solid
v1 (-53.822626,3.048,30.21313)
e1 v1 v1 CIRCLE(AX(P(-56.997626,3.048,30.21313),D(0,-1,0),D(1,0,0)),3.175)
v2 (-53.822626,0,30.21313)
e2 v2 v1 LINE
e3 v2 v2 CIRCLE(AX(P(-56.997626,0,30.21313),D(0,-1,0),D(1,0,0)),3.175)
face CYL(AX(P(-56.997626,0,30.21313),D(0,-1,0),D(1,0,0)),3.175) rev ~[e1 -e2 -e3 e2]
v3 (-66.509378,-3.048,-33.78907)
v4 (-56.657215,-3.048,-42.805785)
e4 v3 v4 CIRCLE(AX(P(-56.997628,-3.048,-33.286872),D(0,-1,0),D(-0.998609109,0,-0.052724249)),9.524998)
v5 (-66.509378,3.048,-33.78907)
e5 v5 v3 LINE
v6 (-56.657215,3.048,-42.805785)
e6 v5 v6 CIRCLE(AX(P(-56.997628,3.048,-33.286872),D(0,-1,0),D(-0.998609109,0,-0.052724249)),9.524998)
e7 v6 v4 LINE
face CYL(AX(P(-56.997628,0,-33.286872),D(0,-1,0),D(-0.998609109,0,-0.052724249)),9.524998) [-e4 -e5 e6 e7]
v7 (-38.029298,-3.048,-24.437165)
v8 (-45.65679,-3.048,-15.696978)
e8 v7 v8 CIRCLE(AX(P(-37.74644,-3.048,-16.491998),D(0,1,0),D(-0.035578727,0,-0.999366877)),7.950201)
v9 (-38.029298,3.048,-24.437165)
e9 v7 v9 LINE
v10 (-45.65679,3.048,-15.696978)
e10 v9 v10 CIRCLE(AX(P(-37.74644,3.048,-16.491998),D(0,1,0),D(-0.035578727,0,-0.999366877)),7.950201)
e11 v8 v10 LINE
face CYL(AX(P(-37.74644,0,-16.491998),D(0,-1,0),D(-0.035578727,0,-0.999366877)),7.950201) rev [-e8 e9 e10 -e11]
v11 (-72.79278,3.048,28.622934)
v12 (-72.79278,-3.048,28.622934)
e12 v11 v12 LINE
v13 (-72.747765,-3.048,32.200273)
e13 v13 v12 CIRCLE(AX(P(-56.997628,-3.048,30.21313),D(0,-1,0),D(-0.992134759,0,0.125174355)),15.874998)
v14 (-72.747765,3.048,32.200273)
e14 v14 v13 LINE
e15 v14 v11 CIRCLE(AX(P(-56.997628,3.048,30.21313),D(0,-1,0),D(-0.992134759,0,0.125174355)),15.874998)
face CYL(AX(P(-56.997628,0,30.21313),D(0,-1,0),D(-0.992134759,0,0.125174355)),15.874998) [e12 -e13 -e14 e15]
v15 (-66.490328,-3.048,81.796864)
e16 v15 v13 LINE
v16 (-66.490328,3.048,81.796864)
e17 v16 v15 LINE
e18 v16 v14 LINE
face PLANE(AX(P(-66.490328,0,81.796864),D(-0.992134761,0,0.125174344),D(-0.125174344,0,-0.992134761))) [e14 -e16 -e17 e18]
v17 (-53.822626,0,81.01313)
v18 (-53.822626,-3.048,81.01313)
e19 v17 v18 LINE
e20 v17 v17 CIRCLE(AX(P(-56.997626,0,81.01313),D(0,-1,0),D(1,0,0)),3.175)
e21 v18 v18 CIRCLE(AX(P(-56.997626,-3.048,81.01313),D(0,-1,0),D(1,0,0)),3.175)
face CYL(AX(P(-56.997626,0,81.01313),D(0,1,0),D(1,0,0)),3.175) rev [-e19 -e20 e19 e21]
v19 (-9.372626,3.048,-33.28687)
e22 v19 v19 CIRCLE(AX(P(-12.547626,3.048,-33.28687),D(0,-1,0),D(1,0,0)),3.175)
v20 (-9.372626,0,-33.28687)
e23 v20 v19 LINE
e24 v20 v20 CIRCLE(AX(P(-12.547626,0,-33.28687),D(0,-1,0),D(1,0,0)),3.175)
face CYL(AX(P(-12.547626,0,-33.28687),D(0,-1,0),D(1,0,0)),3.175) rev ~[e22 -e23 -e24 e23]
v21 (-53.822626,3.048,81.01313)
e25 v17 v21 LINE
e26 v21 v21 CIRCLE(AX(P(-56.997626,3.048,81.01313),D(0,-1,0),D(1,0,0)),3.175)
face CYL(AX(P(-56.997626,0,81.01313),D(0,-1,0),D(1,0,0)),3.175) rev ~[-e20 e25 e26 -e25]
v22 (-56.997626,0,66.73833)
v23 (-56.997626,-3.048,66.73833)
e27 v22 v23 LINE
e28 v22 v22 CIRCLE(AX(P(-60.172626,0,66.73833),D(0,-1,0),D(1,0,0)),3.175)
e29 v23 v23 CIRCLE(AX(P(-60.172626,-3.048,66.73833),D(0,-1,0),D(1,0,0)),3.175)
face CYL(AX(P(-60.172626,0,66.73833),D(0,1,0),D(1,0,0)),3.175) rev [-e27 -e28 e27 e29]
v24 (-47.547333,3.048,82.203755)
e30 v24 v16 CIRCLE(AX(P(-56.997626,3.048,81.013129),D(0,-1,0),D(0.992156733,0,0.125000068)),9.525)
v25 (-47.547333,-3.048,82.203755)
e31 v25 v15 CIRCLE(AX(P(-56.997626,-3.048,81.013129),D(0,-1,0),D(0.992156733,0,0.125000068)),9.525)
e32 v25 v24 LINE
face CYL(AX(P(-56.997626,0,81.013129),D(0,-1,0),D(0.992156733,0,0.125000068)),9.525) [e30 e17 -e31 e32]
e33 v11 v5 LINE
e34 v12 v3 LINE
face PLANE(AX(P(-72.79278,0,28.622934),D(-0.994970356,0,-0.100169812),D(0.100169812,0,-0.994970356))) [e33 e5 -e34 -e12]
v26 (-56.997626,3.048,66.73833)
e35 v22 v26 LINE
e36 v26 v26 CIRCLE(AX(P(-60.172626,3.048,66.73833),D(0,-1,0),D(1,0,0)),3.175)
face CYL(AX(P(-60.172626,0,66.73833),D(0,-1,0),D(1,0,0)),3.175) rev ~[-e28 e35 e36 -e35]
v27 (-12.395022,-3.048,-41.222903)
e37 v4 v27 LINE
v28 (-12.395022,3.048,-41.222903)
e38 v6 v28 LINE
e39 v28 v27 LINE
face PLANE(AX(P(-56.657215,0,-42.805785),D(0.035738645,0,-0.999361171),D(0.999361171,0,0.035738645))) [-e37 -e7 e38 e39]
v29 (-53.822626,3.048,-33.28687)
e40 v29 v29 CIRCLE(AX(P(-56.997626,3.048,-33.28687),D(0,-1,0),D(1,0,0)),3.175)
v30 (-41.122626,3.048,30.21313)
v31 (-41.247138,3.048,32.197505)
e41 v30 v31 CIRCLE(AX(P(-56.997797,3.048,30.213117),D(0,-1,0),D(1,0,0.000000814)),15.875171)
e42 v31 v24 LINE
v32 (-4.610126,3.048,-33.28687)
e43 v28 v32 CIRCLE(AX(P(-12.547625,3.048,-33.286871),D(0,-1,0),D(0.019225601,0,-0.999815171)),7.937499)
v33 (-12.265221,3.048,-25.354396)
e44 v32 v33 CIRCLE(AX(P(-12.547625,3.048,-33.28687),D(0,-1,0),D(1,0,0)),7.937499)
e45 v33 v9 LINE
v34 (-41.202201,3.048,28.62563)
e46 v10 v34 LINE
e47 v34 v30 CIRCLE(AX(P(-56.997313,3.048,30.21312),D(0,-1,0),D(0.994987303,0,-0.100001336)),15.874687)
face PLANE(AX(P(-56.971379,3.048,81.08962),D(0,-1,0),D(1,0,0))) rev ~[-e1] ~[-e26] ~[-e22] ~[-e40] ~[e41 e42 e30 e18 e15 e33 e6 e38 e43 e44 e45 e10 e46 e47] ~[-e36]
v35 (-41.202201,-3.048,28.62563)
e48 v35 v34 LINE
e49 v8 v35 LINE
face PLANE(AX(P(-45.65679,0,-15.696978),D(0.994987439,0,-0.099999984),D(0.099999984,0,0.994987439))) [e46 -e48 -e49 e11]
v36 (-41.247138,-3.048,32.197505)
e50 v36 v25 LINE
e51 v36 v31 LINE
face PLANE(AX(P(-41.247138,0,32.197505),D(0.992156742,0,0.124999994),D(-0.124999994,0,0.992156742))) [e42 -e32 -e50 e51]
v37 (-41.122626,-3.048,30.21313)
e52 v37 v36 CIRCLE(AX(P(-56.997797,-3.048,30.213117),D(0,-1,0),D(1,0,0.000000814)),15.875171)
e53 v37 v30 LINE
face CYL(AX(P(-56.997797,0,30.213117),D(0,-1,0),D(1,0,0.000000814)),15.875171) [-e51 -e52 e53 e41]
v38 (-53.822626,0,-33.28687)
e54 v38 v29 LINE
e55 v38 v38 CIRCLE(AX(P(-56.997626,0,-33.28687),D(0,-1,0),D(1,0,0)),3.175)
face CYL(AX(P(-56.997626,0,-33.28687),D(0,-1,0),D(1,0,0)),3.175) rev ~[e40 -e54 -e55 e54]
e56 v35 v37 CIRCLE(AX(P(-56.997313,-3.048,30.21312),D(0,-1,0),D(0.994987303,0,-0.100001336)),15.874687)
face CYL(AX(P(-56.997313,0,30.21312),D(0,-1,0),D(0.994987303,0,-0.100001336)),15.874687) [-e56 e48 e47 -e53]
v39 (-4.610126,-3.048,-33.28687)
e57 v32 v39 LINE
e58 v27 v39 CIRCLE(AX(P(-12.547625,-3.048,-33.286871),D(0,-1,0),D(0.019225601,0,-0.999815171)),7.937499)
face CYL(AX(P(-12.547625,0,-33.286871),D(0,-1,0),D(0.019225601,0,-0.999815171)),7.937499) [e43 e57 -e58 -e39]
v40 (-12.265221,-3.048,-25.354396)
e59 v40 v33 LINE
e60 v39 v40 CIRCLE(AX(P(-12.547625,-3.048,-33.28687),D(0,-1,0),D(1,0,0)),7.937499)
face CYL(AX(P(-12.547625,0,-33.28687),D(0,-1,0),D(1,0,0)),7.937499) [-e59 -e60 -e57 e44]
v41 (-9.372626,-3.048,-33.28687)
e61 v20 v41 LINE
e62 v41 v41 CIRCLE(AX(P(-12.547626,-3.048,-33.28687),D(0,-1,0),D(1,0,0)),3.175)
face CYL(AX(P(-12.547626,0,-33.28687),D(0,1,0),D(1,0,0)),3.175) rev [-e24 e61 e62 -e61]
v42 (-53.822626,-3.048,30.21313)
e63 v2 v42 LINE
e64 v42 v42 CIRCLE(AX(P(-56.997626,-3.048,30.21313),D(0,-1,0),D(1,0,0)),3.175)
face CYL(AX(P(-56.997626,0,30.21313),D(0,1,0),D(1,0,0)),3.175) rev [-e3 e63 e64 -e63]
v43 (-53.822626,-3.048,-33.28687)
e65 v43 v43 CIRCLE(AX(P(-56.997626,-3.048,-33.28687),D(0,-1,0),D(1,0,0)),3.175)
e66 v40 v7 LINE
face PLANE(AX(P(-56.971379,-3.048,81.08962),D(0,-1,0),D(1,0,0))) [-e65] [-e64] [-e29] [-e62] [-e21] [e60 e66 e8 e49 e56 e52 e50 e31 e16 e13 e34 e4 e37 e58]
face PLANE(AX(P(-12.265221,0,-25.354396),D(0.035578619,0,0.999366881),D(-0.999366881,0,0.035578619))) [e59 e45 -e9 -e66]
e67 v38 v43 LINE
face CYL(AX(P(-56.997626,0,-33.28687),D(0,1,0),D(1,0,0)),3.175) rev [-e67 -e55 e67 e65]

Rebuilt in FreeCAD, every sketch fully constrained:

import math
import FreeCAD as App
import Part
import Sketcher
Q = App.Units.Quantity

doc = App.newDocument("Part")
body = doc.addObject("PartDesign::Body", "Body")

# Sketch on XZ plane
sketch1 = body.newObject("Sketcher::SketchObject", "Sketch")
sketch1.AttachmentSupport = (doc.getObject("XZ_Plane"), [""])
sketch1.MapMode = "FlatFace"
sketch1.addGeometry(Part.ArcOfCircle(Part.Circle(App.Vector(-56.997626, 81.013129, 0), App.Vector(0, 0, 1), 9.525), math.radians(7.18076), math.radians(175.280261)), False)
sketch1.addGeometry(Part.LineSegment(App.Vector(-66.490328, 81.796864, 0), App.Vector(-72.747765, 32.200273, 0)), False)
sketch1.addGeometry(Part.ArcOfCircle(Part.Circle(App.Vector(-56.997628, 30.21313, 0), App.Vector(0, 0, 1), 15.874998), math.radians(172.809175), math.radians(185.748952)), False)
sketch1.addGeometry(Part.LineSegment(App.Vector(-72.79278, 28.622934, 0), App.Vector(-66.509378, -33.78907, 0)), False)
sketch1.addGeometry(Part.ArcOfCircle(Part.Circle(App.Vector(-56.997628, -33.286872, 0), App.Vector(0, 0, 1), 9.524998), math.radians(-176.977722), math.radians(-87.951876)), False)
sketch1.addGeometry(Part.LineSegment(App.Vector(-56.657215, -42.805785, 0), App.Vector(-12.395022, -41.222903, 0)), False)
sketch1.addGeometry(Part.ArcOfCircle(Part.Circle(App.Vector(-12.547625, -33.286871, 0), App.Vector(0, 0, 1), 7.937499), math.radians(-88.898386), math.radians(0.000006)), False)
sketch1.addGeometry(Part.ArcOfCircle(Part.Circle(App.Vector(-12.547625, -33.28687, 0), App.Vector(0, 0, 1), 7.937499), math.radians(0), math.radians(87.961072)), False)
sketch1.addGeometry(Part.LineSegment(App.Vector(-12.265221, -25.354396, 0), App.Vector(-38.029298, -24.437165, 0)), False)
sketch1.addGeometry(Part.ArcOfCircle(Part.Circle(App.Vector(-37.74644, -16.491998, 0), App.Vector(0, 0, 1), 7.950201), math.radians(174.260833), math.radians(267.961059)), False)
sketch1.addGeometry(Part.LineSegment(App.Vector(-45.65679, -15.696978, 0), App.Vector(-41.202201, 28.62563, 0)), False)
sketch1.addGeometry(Part.ArcOfCircle(Part.Circle(App.Vector(-56.997313, 30.21312, 0), App.Vector(0, 0, 1), 15.874687), math.radians(-5.739247), math.radians(0.000036)), False)
sketch1.addGeometry(Part.ArcOfCircle(Part.Circle(App.Vector(-56.997797, 30.213117, 0), App.Vector(0, 0, 1), 15.875171), math.radians(0.000047), math.radians(7.180725)), False)
sketch1.addGeometry(Part.LineSegment(App.Vector(-41.247138, 32.197505, 0), App.Vector(-47.547333, 82.203755, 0)), False)
sketch1.addGeometry(Part.Circle(App.Vector(-56.997626, -33.28687, 0), App.Vector(0, 0, 1), 3.175), False)
sketch1.addGeometry(Part.Circle(App.Vector(-12.547626, -33.28687, 0), App.Vector(0, 0, 1), 3.175), False)
sketch1.addGeometry(Part.Circle(App.Vector(-56.997626, 30.21313, 0), App.Vector(0, 0, 1), 3.175), False)
sketch1.addGeometry(Part.Circle(App.Vector(-60.172626, 66.73833, 0), App.Vector(0, 0, 1), 3.175), False)
sketch1.addGeometry(Part.Circle(App.Vector(-56.997626, 81.01313, 0), App.Vector(0, 0, 1), 3.175), False)
sketch1.addConstraint(Sketcher.Constraint("Coincident", 0, 2, 1, 1))
sketch1.addConstraint(Sketcher.Constraint("Coincident", 1, 2, 2, 1))
sketch1.addConstraint(Sketcher.Constraint("Coincident", 2, 2, 3, 1))
sketch1.addConstraint(Sketcher.Constraint("Coincident", 3, 2, 4, 1))
sketch1.addConstraint(Sketcher.Constraint("Coincident", 4, 2, 5, 1))
sketch1.addConstraint(Sketcher.Constraint("Coincident", 5, 2, 6, 1))
sketch1.addConstraint(Sketcher.Constraint("Coincident", 6, 2, 7, 1))
sketch1.addConstraint(Sketcher.Constraint("Coincident", 7, 2, 8, 1))
sketch1.addConstraint(Sketcher.Constraint("Coincident", 8, 2, 9, 2))
sketch1.addConstraint(Sketcher.Constraint("Coincident", 9, 1, 10, 1))
sketch1.addConstraint(Sketcher.Constraint("Coincident", 10, 2, 11, 1))
sketch1.addConstraint(Sketcher.Constraint("Coincident", 11, 2, 12, 1))
sketch1.addConstraint(Sketcher.Constraint("Coincident", 12, 2, 13, 1))
sketch1.addConstraint(Sketcher.Constraint("Coincident", 13, 2, 0, 1))
sketch1.addConstraint(Sketcher.Constraint("Coincident", 7, 3, 6, 3))
sketch1.addConstraint(Sketcher.Constraint("Coincident", 14, 3, 4, 3))
sketch1.addConstraint(Sketcher.Constraint("Coincident", 15, 3, 6, 3))
sketch1.addConstraint(Sketcher.Constraint("Coincident", 16, 3, 2, 3))
sketch1.addConstraint(Sketcher.Constraint("Coincident", 18, 3, 0, 3))
sketch1.addConstraint(Sketcher.Constraint("Diameter", 14, Q("0.25 in")))
sketch1.addConstraint(Sketcher.Constraint("Diameter", 15, Q("0.25 in")))
sketch1.addConstraint(Sketcher.Constraint("Diameter", 16, Q("0.25 in")))
sketch1.addConstraint(Sketcher.Constraint("Diameter", 17, Q("0.25 in")))
sketch1.addConstraint(Sketcher.Constraint("Diameter", 18, Q("0.25 in")))
sketch1.addConstraint(Sketcher.Constraint("Radius", 0, Q("0.375 in")))
sketch1.addConstraint(Sketcher.Constraint("Radius", 2, Q("0.6249999 in")))
sketch1.addConstraint(Sketcher.Constraint("Radius", 4, Q("0.3749999 in")))
sketch1.addConstraint(Sketcher.Constraint("Radius", 6, Q("0.3125 in")))
sketch1.addConstraint(Sketcher.Constraint("Radius", 9, Q("0.313 in")))
sketch1.addConstraint(Sketcher.Constraint("DistanceY", 2, 3, 0, 3, Q("2 in")))
sketch1.addConstraint(Sketcher.Constraint("DistanceY", 4, 3, 2, 3, Q("2.5000001 in")))
sketch1.addConstraint(Sketcher.Constraint("DistanceY", 6, 3, 2, 3, Q("2.5000001 in")))
sketch1.addConstraint(Sketcher.Constraint("DistanceX", 4, 3, 6, 3, Q("1.7500001 in")))
sketch1.addConstraint(Sketcher.Constraint("DistanceX", 2, 3, 6, 3, Q("1.7500001 in")))
sketch1.addConstraint(Sketcher.Constraint("DistanceX", 0, 3, 6, 3, Q("1.75 in")))
sketch1.addConstraint(Sketcher.Constraint("Radius", 12, Q("15.875171 mm")))
sketch1.addConstraint(Sketcher.Constraint("DistanceX", 17, 3, 0, 3, Q("0.125 in")))
sketch1.addConstraint(Sketcher.Constraint("DistanceY", 17, 3, 0, 3, Q("0.562 in")))
sketch1.addConstraint(Sketcher.Constraint("DistanceY", 10, 2, 16, 3, Q("0.0625 in")))
sketch1.addConstraint(Sketcher.Constraint("DistanceY", 10, 2, 11, 2, Q("0.0625 in")))
sketch1.addConstraint(Sketcher.Constraint("DistanceX", 16, 3, 11, 2, Q("0.625 in")))
sketch1.addConstraint(Sketcher.Constraint("DistanceY", 11, 2, 12, 2, Q("0.078125 in")))
sketch1.addConstraint(Sketcher.Constraint("DistanceY", 18, 3, 13, 2, Q("0.046875 in")))
sketch1.addConstraint(Sketcher.Constraint("Radius", 11, Q("15.874687 mm")))
sketch1.addConstraint(Sketcher.Constraint("DistanceY", 9, 3, 9, 1, Q("0.0313 in")))
sketch1.addConstraint(Sketcher.Constraint("Distance", 3, Q("62.727501 mm")))
sketch1.addConstraint(Sketcher.Constraint("Distance", 8, Q("25.780399 mm")))
sketch1.addConstraint(Sketcher.Constraint("DistanceX", 10, 2, -1, 1, Q("41.202201 mm")))
sketch1.addConstraint(Sketcher.Constraint("DistanceX", 0, 2, 0, 3, Q("9.492702 mm")))
sketch1.addConstraint(Sketcher.Constraint("DistanceY", 3, 2, 4, 3, Q("0.502198 mm")))
sketch1.addConstraint(Sketcher.Constraint("DistanceX", 5, 2, 7, 2, Q("0.129801 mm")))
sketch1.addConstraint(Sketcher.Constraint("DistanceY", -1, 1, 0, 3, Q("81.013129 mm")))
sketch1.addConstraint(Sketcher.Constraint("DistanceX", 9, 3, -1, 1, Q("37.74644 mm")))
sketch1.addConstraint(Sketcher.Constraint("DistanceY", -1, 1, 11, 3, Q("30.21312 mm")))
sketch1.addConstraint(Sketcher.Constraint("DistanceY", 6, 2, -1, 1, Q("33.28687 mm")))
sketch1.addConstraint(Sketcher.Constraint("DistanceX", 7, 2, -1, 1, Q("12.265221 mm")))
sketch1.addConstraint(Sketcher.Constraint("DistanceY", 4, 3, 12, 3, Q("63.499989 mm")))
sketch1.addConstraint(Sketcher.Constraint("DistanceX", 1, 2, 16, 3, Q("15.750139 mm")))
sketch1.addConstraint(Sketcher.Constraint("DistanceX", 14, 3, 4, 2, Q("0.340411 mm")))
sketch1.addConstraint(Sketcher.Constraint("DistanceX", 8, 2, 9, 3, Q("0.282858 mm")))
pad1 = body.newObject("PartDesign::Pad", "Pad")
pad1.Profile = sketch1
pad1.Type = "TwoLengths"
pad1.Length = Q("0.12 in")
pad1.Length2 = Q("0.12 in")

doc.recompute()
